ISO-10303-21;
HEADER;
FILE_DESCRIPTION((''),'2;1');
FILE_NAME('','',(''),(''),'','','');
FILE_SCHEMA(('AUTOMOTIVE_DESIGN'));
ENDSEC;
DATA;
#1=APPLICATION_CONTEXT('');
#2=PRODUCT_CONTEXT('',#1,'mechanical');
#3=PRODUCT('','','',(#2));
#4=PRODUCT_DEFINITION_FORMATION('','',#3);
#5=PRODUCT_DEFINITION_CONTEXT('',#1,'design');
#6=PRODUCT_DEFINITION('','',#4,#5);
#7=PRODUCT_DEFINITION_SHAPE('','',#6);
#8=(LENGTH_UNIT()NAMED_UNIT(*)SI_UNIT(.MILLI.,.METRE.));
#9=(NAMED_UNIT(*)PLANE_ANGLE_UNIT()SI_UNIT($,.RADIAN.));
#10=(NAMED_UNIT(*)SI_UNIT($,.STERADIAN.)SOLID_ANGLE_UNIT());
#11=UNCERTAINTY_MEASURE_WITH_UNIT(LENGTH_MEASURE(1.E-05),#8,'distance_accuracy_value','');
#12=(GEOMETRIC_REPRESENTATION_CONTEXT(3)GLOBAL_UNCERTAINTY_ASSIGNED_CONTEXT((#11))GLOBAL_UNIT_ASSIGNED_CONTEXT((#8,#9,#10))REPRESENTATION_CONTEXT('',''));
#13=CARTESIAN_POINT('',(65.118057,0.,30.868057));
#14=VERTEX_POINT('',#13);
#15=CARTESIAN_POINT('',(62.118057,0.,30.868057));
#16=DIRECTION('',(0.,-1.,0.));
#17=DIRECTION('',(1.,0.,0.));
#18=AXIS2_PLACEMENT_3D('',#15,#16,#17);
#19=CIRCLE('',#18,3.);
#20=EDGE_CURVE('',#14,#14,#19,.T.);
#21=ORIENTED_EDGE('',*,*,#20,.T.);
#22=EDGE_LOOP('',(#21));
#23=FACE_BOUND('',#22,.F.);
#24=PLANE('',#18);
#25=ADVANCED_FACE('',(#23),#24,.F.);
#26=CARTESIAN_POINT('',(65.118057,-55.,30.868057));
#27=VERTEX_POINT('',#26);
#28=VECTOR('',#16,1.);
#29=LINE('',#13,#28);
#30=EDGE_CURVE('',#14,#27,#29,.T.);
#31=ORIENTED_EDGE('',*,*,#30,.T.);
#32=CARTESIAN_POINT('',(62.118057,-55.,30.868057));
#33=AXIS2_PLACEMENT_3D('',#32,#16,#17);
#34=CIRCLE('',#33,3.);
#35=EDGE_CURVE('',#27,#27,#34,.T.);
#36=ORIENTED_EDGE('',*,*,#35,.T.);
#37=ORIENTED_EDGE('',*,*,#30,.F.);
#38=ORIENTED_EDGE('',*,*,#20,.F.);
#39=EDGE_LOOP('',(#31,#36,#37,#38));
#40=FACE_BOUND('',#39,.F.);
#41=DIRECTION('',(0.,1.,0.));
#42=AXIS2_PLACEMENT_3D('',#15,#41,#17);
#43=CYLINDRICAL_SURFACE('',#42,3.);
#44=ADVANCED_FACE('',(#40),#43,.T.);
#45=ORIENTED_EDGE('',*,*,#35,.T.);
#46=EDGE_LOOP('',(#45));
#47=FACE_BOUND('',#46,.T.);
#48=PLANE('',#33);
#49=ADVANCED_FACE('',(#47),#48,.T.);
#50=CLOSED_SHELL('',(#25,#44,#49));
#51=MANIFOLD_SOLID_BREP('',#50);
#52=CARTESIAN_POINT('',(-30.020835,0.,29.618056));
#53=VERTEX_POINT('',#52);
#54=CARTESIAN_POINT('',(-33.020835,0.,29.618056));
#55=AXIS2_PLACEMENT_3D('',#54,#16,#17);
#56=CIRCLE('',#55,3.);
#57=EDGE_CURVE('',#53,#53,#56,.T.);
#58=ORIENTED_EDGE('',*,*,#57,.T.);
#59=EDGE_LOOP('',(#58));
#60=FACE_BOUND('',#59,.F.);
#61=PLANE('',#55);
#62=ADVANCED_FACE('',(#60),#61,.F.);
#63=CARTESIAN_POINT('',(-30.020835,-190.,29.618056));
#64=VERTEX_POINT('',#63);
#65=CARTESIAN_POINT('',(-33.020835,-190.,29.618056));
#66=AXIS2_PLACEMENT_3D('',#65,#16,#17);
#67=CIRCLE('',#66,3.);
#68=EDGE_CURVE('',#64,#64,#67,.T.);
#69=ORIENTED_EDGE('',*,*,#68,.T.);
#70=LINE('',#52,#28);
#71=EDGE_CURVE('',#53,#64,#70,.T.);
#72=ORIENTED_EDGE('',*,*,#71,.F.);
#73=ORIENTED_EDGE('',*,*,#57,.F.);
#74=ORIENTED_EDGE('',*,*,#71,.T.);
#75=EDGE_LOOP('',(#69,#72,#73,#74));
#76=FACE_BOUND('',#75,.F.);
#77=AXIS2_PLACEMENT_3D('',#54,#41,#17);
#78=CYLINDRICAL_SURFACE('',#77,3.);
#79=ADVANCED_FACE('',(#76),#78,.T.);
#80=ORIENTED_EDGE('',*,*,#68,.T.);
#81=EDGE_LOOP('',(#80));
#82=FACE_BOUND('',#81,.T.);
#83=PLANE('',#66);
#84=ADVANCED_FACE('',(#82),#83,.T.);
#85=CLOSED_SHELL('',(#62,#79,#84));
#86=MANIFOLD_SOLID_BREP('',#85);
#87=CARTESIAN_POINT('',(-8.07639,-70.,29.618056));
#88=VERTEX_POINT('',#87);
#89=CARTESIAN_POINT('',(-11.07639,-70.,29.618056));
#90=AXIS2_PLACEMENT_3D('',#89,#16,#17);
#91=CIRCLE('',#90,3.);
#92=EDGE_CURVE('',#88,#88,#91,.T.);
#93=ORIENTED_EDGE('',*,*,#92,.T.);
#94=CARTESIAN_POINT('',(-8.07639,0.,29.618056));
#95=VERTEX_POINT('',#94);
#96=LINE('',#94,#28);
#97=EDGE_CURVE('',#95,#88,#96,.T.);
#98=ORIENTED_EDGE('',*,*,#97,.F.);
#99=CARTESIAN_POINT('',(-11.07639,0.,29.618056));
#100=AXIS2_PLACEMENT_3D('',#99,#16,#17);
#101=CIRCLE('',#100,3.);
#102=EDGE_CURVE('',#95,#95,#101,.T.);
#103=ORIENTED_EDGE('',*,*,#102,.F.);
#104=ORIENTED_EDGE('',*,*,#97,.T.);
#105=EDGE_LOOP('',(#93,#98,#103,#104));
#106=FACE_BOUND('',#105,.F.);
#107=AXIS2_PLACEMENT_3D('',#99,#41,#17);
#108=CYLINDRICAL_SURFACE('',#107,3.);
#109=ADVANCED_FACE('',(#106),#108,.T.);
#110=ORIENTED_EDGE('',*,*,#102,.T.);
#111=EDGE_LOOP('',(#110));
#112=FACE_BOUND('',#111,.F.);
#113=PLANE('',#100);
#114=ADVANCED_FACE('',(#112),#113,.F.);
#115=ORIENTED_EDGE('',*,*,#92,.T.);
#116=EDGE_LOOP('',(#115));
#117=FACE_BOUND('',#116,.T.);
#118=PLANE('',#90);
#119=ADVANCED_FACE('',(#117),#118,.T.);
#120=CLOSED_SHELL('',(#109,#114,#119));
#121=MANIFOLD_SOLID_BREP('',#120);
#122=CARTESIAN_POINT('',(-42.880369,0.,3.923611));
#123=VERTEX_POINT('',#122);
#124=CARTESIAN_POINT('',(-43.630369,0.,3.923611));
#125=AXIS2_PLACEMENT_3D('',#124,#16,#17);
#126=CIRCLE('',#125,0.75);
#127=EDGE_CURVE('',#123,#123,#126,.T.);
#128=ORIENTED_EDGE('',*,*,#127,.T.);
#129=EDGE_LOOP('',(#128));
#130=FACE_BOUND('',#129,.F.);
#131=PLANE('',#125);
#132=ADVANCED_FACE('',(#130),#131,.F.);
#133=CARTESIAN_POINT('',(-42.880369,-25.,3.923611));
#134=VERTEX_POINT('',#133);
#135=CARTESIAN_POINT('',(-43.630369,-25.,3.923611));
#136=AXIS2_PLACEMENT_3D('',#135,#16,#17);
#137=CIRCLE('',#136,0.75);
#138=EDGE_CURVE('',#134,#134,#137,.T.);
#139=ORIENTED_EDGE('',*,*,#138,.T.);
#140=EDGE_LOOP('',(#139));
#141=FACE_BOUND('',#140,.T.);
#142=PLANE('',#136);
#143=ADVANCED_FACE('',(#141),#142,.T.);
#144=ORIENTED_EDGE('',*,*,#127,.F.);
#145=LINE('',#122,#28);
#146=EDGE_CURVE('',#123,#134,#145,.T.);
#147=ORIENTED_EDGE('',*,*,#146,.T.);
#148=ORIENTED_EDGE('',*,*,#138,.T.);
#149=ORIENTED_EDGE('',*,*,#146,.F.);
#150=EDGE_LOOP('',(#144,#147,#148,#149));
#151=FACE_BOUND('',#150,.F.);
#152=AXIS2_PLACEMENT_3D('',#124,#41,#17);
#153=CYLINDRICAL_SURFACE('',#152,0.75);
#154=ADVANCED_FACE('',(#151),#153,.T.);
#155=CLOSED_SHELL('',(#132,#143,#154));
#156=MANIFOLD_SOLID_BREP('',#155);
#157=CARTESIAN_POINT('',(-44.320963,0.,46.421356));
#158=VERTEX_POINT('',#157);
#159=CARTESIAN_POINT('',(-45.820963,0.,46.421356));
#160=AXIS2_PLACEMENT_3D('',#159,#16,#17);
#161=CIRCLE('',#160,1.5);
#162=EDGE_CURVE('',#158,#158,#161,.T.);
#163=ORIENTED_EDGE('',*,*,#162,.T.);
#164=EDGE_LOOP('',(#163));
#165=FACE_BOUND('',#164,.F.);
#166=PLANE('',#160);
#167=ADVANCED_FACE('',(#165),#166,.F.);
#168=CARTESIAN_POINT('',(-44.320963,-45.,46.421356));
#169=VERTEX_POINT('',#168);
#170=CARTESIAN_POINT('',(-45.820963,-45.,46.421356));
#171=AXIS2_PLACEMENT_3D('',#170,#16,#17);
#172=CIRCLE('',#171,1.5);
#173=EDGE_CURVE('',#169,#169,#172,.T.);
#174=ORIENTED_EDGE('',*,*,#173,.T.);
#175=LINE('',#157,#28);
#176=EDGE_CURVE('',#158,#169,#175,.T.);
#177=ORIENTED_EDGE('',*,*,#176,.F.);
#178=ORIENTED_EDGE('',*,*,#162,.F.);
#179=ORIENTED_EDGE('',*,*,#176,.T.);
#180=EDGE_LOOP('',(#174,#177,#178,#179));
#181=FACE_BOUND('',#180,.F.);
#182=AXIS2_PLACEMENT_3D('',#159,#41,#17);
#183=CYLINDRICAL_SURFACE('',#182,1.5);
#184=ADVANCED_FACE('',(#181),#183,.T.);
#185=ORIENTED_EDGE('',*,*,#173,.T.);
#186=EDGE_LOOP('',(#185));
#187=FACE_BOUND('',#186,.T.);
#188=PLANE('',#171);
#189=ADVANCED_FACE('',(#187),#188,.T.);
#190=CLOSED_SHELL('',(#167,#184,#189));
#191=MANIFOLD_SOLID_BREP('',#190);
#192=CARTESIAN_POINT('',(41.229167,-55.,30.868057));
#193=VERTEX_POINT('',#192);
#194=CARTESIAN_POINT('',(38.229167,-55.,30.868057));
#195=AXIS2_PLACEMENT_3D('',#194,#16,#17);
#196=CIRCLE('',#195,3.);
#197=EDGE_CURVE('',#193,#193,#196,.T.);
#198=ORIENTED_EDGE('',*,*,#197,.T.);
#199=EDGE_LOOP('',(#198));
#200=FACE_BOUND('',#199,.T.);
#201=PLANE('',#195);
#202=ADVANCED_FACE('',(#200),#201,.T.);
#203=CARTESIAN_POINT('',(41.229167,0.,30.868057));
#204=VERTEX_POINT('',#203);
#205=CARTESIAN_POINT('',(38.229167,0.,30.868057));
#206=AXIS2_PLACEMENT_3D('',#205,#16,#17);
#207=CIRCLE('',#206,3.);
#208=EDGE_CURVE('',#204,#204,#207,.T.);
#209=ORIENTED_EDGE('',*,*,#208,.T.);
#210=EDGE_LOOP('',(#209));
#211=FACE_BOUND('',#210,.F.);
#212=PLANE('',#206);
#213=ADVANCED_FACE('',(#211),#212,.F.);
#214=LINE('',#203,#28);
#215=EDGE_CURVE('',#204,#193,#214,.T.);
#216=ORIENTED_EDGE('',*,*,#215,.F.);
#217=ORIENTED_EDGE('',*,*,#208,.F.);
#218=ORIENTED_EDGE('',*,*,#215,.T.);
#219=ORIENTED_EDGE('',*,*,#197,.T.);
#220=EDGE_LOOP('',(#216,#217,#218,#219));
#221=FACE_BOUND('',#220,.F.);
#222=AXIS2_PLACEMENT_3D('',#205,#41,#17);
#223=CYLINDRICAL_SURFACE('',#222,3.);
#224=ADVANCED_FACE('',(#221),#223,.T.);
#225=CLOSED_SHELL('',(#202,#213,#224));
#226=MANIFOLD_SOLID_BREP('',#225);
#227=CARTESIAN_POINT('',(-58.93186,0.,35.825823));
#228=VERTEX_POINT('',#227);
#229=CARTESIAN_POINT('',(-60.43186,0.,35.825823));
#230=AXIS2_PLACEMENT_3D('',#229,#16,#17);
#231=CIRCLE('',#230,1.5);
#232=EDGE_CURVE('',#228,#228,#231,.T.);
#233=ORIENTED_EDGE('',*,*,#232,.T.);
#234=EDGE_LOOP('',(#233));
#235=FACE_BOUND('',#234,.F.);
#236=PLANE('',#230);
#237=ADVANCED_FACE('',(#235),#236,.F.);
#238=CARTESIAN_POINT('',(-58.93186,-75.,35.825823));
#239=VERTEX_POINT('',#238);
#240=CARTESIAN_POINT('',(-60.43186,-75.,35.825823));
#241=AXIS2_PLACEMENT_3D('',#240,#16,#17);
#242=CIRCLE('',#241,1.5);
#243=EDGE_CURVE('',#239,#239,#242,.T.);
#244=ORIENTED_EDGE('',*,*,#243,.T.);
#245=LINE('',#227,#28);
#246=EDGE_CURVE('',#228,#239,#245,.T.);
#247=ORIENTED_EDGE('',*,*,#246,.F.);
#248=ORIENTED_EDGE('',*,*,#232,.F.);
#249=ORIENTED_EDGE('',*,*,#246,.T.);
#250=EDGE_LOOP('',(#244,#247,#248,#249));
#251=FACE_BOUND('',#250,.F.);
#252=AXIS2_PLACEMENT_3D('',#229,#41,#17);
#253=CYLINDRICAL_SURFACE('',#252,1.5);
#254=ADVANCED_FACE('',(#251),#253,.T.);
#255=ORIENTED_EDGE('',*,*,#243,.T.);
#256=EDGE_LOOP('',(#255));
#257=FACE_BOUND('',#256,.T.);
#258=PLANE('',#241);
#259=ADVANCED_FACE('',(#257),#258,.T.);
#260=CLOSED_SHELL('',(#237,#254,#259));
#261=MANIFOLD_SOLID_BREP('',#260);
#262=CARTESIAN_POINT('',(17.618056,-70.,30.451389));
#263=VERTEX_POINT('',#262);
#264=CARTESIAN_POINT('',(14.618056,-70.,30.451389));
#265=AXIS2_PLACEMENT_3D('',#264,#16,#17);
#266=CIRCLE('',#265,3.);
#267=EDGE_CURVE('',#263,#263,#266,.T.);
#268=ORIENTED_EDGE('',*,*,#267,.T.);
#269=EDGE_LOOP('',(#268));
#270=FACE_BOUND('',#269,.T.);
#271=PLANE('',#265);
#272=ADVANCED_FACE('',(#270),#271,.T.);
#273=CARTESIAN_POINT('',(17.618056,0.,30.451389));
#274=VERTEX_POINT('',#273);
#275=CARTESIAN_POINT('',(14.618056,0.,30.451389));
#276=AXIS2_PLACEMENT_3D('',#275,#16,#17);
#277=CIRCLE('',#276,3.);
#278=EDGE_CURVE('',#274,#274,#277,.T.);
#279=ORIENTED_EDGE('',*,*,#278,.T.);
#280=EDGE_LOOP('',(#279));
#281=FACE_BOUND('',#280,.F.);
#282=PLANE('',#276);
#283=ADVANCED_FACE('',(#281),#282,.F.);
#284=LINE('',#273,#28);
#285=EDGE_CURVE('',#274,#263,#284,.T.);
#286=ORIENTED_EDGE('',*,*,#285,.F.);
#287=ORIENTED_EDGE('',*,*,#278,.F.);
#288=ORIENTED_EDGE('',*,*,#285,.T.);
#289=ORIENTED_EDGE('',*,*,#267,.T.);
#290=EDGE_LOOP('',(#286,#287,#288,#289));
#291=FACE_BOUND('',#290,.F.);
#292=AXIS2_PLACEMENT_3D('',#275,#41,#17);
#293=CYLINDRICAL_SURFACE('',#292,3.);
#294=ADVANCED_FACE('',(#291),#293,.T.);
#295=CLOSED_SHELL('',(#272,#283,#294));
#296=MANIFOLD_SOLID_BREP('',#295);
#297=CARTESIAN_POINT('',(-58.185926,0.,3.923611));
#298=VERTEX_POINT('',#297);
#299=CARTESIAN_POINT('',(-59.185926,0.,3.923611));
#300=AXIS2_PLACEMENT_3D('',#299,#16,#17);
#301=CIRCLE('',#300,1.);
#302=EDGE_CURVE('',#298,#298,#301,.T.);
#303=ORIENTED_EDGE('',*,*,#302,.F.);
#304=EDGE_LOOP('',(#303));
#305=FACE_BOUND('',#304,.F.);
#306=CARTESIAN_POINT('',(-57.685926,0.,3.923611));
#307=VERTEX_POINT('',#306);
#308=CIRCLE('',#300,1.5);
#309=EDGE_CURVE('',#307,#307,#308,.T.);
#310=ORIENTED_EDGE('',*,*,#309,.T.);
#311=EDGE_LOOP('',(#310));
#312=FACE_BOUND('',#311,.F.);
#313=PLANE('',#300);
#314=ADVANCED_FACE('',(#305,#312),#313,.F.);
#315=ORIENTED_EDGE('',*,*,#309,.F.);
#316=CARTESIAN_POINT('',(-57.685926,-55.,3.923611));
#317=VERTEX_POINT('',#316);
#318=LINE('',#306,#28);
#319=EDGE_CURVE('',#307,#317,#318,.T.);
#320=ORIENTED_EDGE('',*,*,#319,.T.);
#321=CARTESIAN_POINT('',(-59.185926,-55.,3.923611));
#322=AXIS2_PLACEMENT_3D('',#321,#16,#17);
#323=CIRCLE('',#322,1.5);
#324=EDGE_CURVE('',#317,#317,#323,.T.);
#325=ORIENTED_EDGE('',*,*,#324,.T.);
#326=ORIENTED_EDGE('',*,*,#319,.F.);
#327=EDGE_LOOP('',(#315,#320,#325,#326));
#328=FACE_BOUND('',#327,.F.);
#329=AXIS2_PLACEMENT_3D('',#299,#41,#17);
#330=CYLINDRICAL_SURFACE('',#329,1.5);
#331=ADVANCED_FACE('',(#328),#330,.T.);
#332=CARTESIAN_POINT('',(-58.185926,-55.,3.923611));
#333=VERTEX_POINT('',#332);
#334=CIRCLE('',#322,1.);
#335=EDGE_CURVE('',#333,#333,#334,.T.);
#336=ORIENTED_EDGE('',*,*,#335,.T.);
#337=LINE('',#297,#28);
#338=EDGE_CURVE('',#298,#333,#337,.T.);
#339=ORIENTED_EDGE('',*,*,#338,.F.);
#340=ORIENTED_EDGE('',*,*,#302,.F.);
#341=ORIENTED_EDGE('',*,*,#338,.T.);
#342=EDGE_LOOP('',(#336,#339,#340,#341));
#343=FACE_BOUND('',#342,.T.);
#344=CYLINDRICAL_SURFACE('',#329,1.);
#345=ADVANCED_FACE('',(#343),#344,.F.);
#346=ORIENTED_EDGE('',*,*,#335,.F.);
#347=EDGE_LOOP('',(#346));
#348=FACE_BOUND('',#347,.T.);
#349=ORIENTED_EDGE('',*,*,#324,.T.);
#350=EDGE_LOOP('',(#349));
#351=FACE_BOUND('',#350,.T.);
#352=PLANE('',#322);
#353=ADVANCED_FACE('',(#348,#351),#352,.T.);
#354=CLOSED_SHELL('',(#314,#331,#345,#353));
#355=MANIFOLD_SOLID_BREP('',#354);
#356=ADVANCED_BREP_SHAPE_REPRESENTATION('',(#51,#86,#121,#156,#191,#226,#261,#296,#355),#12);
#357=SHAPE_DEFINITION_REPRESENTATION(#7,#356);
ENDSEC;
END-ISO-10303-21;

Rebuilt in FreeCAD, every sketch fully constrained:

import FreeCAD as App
import Part
import Sketcher
from FreeCAD import Vector
Q = App.Units.Quantity

doc = App.newDocument("Part")
params = doc.addObject("Spreadsheet::Sheet", "Params")
for row, (alias, value) in enumerate([
    ("sketch1_diameter", "6 mm"),
    ("pad1_length", "190 mm"),
    ("sketch2_diameter", "6 mm"),
    ("pad2_length", "70 mm"),
    ("sketch3_diameter", "6 mm"),
    ("pad3_length", "55 mm"),
    ("sketch4_diameter", "6 mm"),
    ("pad4_length", "55 mm"),
    ("sketch5_diameter", "3 mm"),
    ("pad5_length", "75 mm"),
    ("sketch6_diameter", "3 mm"),
    ("pad6_length", "45 mm"),
    ("sketch7_diameter", "3 mm"),
    ("sketch7_diameter2", "2 mm"),
    ("pad7_length", "55 mm"),
    ("sketch8_diameter", "1.5 mm"),
    ("pad8_length", "25 mm"),
], start=1):
    params.set(f"A{row}", alias)
    params.set(f"B{row}", "=" + value)
    params.setAlias(f"B{row}", alias)

body = doc.addObject("PartDesign::Body", "Body")

# Sketch on XZ plane
sketch1 = body.newObject("Sketcher::SketchObject", "Sketch")
sketch1.AttachmentSupport = (doc.getObject("XZ_Plane"), [""])
sketch1.MapMode = "FlatFace"
sketch1.addGeometry(Part.Circle(Vector(-33, 29.6, 0), Vector(0, 0, 1), 3), False)
sketch1.addConstraint([
    Sketcher.Constraint("Diameter", 0, Q("6 mm")),
    Sketcher.Constraint("DistanceX", 0, 3, -1, 1, Q("33.020835 mm")),
    Sketcher.Constraint("DistanceY", -1, 1, 0, 3, Q("29.618056 mm")),
])
sketch1.setExpression("Constraints[0]", "Params.sketch1_diameter")
pad1 = body.newObject("PartDesign::Pad", "Pad")
pad1.Profile = sketch1
pad1.setExpression("Length", "Params.pad1_length")
body2 = doc.addObject("PartDesign::Body", "Body001")
body2.AllowCompound = True

# Sketch on XZ plane
sketch2 = body2.newObject("Sketcher::SketchObject", "Sketch001")
sketch2.AttachmentSupport = (doc.getObject("XZ_Plane001"), [""])
sketch2.MapMode = "FlatFace"
sketch2.addGeometry([
    Part.Circle(Vector(-11.1, 29.6, 0), Vector(0, 0, 1), 3),
    Part.Circle(Vector(14.6, 30.5, 0), Vector(0, 0, 1), 3),
], False)
sketch2.addConstraint([
    Sketcher.Constraint("Equal", 0, 1),
    Sketcher.Constraint("Diameter", 0, Q("6 mm")),
    Sketcher.Constraint("DistanceX", 0, 3, -1, 1, Q("11.07639 mm")),
    Sketcher.Constraint("DistanceY", -1, 1, 1, 3, Q("30.451389 mm")),
    Sketcher.Constraint("DistanceY", -1, 1, 0, 3, Q("29.618056 mm")),
    Sketcher.Constraint("DistanceX", -1, 1, 1, 3, Q("14.618056 mm")),
])
sketch2.setExpression("Constraints[1]", "Params.sketch2_diameter")
pad2 = body2.newObject("PartDesign::Pad", "Pad001")
pad2.Profile = sketch2
pad2.setExpression("Length", "Params.pad2_length")
body3 = doc.addObject("PartDesign::Body", "Body002")

# Sketch on XZ plane
sketch3 = body3.newObject("Sketcher::SketchObject", "Sketch002")
sketch3.AttachmentSupport = (doc.getObject("XZ_Plane002"), [""])
sketch3.MapMode = "FlatFace"
sketch3.addGeometry(Part.Circle(Vector(38.2, 30.9, 0), Vector(0, 0, 1), 3), False)
sketch3.addConstraint([
    Sketcher.Constraint("Diameter", 0, Q("6 mm")),
    Sketcher.Constraint("DistanceX", -1, 1, 0, 3, Q("38.229167 mm")),
    Sketcher.Constraint("DistanceY", -1, 1, 0, 3, Q("30.868057 mm")),
])
sketch3.setExpression("Constraints[0]", "Params.sketch3_diameter")
pad3 = body3.newObject("PartDesign::Pad", "Pad002")
pad3.Profile = sketch3
pad3.setExpression("Length", "Params.pad3_length")
body4 = doc.addObject("PartDesign::Body", "Body003")

# Sketch on XZ plane
sketch4 = body4.newObject("Sketcher::SketchObject", "Sketch003")
sketch4.AttachmentSupport = (doc.getObject("XZ_Plane003"), [""])
sketch4.MapMode = "FlatFace"
sketch4.addGeometry(Part.Circle(Vector(62.1, 30.9, 0), Vector(0, 0, 1), 3), False)
sketch4.addConstraint([
    Sketcher.Constraint("Diameter", 0, Q("6 mm")),
    Sketcher.Constraint("DistanceX", -1, 1, 0, 3, Q("62.118057 mm")),
    Sketcher.Constraint("DistanceY", -1, 1, 0, 3, Q("30.868057 mm")),
])
sketch4.setExpression("Constraints[0]", "Params.sketch4_diameter")
pad4 = body4.newObject("PartDesign::Pad", "Pad003")
pad4.Profile = sketch4
pad4.setExpression("Length", "Params.pad4_length")
body5 = doc.addObject("PartDesign::Body", "Body004")

# Sketch on XZ plane
sketch5 = body5.newObject("Sketcher::SketchObject", "Sketch004")
sketch5.AttachmentSupport = (doc.getObject("XZ_Plane004"), [""])
sketch5.MapMode = "FlatFace"
sketch5.addGeometry(Part.Circle(Vector(-60.4, 35.8, 0), Vector(0, 0, 1), 1.5), False)
sketch5.addConstraint([
    Sketcher.Constraint("Diameter", 0, Q("3 mm")),
    Sketcher.Constraint("DistanceX", 0, 3, -1, 1, Q("60.43186 mm")),
    Sketcher.Constraint("DistanceY", -1, 1, 0, 3, Q("35.825823 mm")),
])
sketch5.setExpression("Constraints[0]", "Params.sketch5_diameter")
pad5 = body5.newObject("PartDesign::Pad", "Pad004")
pad5.Profile = sketch5
pad5.setExpression("Length", "Params.pad5_length")
body6 = doc.addObject("PartDesign::Body", "Body005")

# Sketch on XZ plane
sketch6 = body6.newObject("Sketcher::SketchObject", "Sketch005")
sketch6.AttachmentSupport = (doc.getObject("XZ_Plane005"), [""])
sketch6.MapMode = "FlatFace"
sketch6.addGeometry(Part.Circle(Vector(-45.8, 46.4, 0), Vector(0, 0, 1), 1.5), False)
sketch6.addConstraint([
    Sketcher.Constraint("Diameter", 0, Q("3 mm")),
    Sketcher.Constraint("DistanceX", 0, 3, -1, 1, Q("45.820963 mm")),
    Sketcher.Constraint("DistanceY", -1, 1, 0, 3, Q("46.421356 mm")),
])
sketch6.setExpression("Constraints[0]", "Params.sketch6_diameter")
pad6 = body6.newObject("PartDesign::Pad", "Pad005")
pad6.Profile = sketch6
pad6.setExpression("Length", "Params.pad6_length")
body7 = doc.addObject("PartDesign::Body", "Body006")

# Sketch on XZ plane
sketch7 = body7.newObject("Sketcher::SketchObject", "Sketch006")
sketch7.AttachmentSupport = (doc.getObject("XZ_Plane006"), [""])
sketch7.MapMode = "FlatFace"
sketch7.addGeometry([
    Part.Circle(Vector(-59.2, 3.9, 0), Vector(0, 0, 1), 1.5),
    Part.Circle(Vector(-59.2, 3.9, 0), Vector(0, 0, 1), 1),
], False)
sketch7.addConstraint([
    Sketcher.Constraint("Coincident", 1, 3, 0, 3),
    Sketcher.Constraint("Diameter", 0, Q("3 mm")),
    Sketcher.Constraint("Diameter", 1, Q("2 mm")),
    Sketcher.Constraint("DistanceY", -1, 1, 0, 3, Q("3.923611 mm")),
    Sketcher.Constraint("DistanceX", 0, 3, -1, 1, Q("59.185926 mm")),
])
sketch7.setExpression("Constraints[1]", "Params.sketch7_diameter")
sketch7.setExpression("Constraints[2]", "Params.sketch7_diameter2")
pad7 = body7.newObject("PartDesign::Pad", "Pad006")
pad7.Profile = sketch7
pad7.setExpression("Length", "Params.pad7_length")
body8 = doc.addObject("PartDesign::Body", "Body007")

# Sketch on XZ plane
sketch8 = body8.newObject("Sketcher::SketchObject", "Sketch007")
sketch8.AttachmentSupport = (doc.getObject("XZ_Plane007"), [""])
sketch8.MapMode = "FlatFace"
sketch8.addGeometry(Part.Circle(Vector(-43.6, 3.9, 0), Vector(0, 0, 1), 0.8), False)
sketch8.addConstraint([
    Sketcher.Constraint("Diameter", 0, Q("1.5 mm")),
    Sketcher.Constraint("DistanceX", 0, 3, -1, 1, Q("43.630369 mm")),
    Sketcher.Constraint("DistanceY", -1, 1, 0, 3, Q("3.923611 mm")),
])
sketch8.setExpression("Constraints[0]", "Params.sketch8_diameter")
pad8 = body8.newObject("PartDesign::Pad", "Pad007")
pad8.Profile = sketch8
pad8.setExpression("Length", "Params.pad8_length")

doc.recompute()
